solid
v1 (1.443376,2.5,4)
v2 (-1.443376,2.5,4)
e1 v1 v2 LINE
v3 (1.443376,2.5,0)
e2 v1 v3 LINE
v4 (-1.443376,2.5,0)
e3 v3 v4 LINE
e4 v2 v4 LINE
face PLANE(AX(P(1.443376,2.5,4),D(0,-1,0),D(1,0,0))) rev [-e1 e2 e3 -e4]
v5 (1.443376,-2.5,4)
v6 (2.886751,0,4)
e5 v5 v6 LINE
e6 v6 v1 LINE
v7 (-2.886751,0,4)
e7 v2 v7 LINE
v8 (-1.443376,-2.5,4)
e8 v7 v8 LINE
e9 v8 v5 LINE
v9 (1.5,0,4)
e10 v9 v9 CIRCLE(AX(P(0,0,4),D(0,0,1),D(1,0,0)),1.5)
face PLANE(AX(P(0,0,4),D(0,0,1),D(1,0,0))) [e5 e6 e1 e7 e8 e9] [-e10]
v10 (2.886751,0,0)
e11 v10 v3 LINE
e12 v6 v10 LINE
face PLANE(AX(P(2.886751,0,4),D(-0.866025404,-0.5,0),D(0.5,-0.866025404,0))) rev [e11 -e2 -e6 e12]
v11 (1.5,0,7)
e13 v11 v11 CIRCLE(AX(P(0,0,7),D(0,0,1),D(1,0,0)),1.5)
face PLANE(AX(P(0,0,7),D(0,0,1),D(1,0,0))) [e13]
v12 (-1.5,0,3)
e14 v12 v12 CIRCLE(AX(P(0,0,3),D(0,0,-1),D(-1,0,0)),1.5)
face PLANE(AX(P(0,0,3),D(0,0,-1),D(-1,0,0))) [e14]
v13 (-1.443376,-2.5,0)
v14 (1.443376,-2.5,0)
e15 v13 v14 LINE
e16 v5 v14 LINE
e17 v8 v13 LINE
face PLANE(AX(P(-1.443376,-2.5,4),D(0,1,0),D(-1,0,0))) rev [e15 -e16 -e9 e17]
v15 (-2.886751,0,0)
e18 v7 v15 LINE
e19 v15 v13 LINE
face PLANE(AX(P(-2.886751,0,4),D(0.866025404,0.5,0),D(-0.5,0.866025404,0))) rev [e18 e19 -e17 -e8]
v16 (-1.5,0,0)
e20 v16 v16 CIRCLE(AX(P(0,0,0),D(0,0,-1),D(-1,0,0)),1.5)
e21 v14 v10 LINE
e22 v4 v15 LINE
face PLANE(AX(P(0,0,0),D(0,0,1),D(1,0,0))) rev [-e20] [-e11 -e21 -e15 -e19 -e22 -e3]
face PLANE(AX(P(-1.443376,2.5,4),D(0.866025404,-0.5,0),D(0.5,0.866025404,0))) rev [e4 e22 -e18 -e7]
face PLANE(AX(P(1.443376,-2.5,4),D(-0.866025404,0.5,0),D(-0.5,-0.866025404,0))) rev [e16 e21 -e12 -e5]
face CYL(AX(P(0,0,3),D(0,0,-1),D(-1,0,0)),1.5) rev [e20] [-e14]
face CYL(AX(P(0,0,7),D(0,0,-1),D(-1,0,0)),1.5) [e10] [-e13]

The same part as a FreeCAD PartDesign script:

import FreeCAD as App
import Part
import Sketcher
from FreeCAD import Vector
Q = App.Units.Quantity

doc = App.newDocument("Part")
body = doc.addObject("PartDesign::Body", "Body")

sketch1 = body.newObject("Sketcher::SketchObject", "Sketch")
sketch1.AttachmentSupport = (doc.getObject("XY_Plane"), [""])
sketch1.MapMode = "FlatFace"
sketch1.addGeometry([
    Part.LineSegment(Vector(2.9, 0, 0), Vector(1.4, 2.5, 0)),
    Part.LineSegment(Vector(1.4, 2.5, 0), Vector(-1.4, 2.5, 0)),
    Part.LineSegment(Vector(-1.4, 2.5, 0), Vector(-2.9, 0, 0)),
    Part.LineSegment(Vector(-2.9, 0, 0), Vector(-1.4, -2.5, 0)),
    Part.LineSegment(Vector(-1.4, -2.5, 0), Vector(1.4, -2.5, 0)),
    Part.LineSegment(Vector(1.4, -2.5, 0), Vector(2.9, 0, 0)),
], False)
sketch1.addConstraint([
    Sketcher.Constraint("Coincident", 0, 2, 1, 1),
    Sketcher.Constraint("Coincident", 1, 2, 2, 1),
    Sketcher.Constraint("Coincident", 2, 2, 3, 1),
    Sketcher.Constraint("Coincident", 3, 2, 4, 1),
    Sketcher.Constraint("Coincident", 4, 2, 5, 1),
    Sketcher.Constraint("Coincident", 5, 2, 0, 1),
    Sketcher.Constraint("Horizontal", 1),
    Sketcher.Constraint("Horizontal", 4),
    Sketcher.Constraint("Symmetric", 0, 2, 3, 2, -1, 1),
    Sketcher.Constraint("Symmetric", 2, 2, 5, 2, -1, 1),
    Sketcher.Constraint("PointOnObject", 2, 2, -1),
    Sketcher.Constraint("Parallel", 2, 5),
    Sketcher.Constraint("Vertical", 1, 2, 3, 2),
    Sketcher.Constraint("Angle", 0, Q("120 deg")),
    Sketcher.Constraint("DistanceY", 3, 2, 1, 2, 5.0),
    Sketcher.Constraint("DistanceX", 1, 2, 1, 1, 2.886751),
])
pad1 = body.newObject("PartDesign::Pad", "Pad")
pad1.Profile = sketch1
pad1.Length = 4

sketch2 = body.newObject("Sketcher::SketchObject", "Sketch001")
sketch2.AttachmentSupport = (doc.getObject("XY_Plane"), [""])
sketch2.MapMode = "FlatFace"
sketch2.addGeometry(Part.Circle(Vector(0, 0, 0), Vector(0, 0, 1), 1.5), False)
sketch2.addConstraint([
    Sketcher.Constraint("Coincident", 0, 3, -1, 1),
    Sketcher.Constraint("Diameter", 0, 3.0),
])
pocket1 = body.newObject("PartDesign::Pocket", "Pocket")
pocket1.Profile = sketch2
pocket1.Length = 3
pocket1.Reversed = True

sketch3 = body.newObject("Sketcher::SketchObject", "Sketch002")
sketch3.AttachmentSupport = (doc.getObject("XY_Plane"), [""])
sketch3.MapMode = "FlatFace"
sketch3.AttachmentOffset = App.Placement(Vector(0, 0, 4), App.Rotation())
sketch3.addGeometry(Part.Circle(Vector(0, 0, 0), Vector(0, 0, 1), 1.5), False)
sketch3.addConstraint([
    Sketcher.Constraint("Coincident", 0, 3, -1, 1),
    Sketcher.Constraint("Diameter", 0, 3.0),
])
pad2 = body.newObject("PartDesign::Pad", "Pad001")
pad2.Profile = sketch3
pad2.Length = 3

doc.recompute()
